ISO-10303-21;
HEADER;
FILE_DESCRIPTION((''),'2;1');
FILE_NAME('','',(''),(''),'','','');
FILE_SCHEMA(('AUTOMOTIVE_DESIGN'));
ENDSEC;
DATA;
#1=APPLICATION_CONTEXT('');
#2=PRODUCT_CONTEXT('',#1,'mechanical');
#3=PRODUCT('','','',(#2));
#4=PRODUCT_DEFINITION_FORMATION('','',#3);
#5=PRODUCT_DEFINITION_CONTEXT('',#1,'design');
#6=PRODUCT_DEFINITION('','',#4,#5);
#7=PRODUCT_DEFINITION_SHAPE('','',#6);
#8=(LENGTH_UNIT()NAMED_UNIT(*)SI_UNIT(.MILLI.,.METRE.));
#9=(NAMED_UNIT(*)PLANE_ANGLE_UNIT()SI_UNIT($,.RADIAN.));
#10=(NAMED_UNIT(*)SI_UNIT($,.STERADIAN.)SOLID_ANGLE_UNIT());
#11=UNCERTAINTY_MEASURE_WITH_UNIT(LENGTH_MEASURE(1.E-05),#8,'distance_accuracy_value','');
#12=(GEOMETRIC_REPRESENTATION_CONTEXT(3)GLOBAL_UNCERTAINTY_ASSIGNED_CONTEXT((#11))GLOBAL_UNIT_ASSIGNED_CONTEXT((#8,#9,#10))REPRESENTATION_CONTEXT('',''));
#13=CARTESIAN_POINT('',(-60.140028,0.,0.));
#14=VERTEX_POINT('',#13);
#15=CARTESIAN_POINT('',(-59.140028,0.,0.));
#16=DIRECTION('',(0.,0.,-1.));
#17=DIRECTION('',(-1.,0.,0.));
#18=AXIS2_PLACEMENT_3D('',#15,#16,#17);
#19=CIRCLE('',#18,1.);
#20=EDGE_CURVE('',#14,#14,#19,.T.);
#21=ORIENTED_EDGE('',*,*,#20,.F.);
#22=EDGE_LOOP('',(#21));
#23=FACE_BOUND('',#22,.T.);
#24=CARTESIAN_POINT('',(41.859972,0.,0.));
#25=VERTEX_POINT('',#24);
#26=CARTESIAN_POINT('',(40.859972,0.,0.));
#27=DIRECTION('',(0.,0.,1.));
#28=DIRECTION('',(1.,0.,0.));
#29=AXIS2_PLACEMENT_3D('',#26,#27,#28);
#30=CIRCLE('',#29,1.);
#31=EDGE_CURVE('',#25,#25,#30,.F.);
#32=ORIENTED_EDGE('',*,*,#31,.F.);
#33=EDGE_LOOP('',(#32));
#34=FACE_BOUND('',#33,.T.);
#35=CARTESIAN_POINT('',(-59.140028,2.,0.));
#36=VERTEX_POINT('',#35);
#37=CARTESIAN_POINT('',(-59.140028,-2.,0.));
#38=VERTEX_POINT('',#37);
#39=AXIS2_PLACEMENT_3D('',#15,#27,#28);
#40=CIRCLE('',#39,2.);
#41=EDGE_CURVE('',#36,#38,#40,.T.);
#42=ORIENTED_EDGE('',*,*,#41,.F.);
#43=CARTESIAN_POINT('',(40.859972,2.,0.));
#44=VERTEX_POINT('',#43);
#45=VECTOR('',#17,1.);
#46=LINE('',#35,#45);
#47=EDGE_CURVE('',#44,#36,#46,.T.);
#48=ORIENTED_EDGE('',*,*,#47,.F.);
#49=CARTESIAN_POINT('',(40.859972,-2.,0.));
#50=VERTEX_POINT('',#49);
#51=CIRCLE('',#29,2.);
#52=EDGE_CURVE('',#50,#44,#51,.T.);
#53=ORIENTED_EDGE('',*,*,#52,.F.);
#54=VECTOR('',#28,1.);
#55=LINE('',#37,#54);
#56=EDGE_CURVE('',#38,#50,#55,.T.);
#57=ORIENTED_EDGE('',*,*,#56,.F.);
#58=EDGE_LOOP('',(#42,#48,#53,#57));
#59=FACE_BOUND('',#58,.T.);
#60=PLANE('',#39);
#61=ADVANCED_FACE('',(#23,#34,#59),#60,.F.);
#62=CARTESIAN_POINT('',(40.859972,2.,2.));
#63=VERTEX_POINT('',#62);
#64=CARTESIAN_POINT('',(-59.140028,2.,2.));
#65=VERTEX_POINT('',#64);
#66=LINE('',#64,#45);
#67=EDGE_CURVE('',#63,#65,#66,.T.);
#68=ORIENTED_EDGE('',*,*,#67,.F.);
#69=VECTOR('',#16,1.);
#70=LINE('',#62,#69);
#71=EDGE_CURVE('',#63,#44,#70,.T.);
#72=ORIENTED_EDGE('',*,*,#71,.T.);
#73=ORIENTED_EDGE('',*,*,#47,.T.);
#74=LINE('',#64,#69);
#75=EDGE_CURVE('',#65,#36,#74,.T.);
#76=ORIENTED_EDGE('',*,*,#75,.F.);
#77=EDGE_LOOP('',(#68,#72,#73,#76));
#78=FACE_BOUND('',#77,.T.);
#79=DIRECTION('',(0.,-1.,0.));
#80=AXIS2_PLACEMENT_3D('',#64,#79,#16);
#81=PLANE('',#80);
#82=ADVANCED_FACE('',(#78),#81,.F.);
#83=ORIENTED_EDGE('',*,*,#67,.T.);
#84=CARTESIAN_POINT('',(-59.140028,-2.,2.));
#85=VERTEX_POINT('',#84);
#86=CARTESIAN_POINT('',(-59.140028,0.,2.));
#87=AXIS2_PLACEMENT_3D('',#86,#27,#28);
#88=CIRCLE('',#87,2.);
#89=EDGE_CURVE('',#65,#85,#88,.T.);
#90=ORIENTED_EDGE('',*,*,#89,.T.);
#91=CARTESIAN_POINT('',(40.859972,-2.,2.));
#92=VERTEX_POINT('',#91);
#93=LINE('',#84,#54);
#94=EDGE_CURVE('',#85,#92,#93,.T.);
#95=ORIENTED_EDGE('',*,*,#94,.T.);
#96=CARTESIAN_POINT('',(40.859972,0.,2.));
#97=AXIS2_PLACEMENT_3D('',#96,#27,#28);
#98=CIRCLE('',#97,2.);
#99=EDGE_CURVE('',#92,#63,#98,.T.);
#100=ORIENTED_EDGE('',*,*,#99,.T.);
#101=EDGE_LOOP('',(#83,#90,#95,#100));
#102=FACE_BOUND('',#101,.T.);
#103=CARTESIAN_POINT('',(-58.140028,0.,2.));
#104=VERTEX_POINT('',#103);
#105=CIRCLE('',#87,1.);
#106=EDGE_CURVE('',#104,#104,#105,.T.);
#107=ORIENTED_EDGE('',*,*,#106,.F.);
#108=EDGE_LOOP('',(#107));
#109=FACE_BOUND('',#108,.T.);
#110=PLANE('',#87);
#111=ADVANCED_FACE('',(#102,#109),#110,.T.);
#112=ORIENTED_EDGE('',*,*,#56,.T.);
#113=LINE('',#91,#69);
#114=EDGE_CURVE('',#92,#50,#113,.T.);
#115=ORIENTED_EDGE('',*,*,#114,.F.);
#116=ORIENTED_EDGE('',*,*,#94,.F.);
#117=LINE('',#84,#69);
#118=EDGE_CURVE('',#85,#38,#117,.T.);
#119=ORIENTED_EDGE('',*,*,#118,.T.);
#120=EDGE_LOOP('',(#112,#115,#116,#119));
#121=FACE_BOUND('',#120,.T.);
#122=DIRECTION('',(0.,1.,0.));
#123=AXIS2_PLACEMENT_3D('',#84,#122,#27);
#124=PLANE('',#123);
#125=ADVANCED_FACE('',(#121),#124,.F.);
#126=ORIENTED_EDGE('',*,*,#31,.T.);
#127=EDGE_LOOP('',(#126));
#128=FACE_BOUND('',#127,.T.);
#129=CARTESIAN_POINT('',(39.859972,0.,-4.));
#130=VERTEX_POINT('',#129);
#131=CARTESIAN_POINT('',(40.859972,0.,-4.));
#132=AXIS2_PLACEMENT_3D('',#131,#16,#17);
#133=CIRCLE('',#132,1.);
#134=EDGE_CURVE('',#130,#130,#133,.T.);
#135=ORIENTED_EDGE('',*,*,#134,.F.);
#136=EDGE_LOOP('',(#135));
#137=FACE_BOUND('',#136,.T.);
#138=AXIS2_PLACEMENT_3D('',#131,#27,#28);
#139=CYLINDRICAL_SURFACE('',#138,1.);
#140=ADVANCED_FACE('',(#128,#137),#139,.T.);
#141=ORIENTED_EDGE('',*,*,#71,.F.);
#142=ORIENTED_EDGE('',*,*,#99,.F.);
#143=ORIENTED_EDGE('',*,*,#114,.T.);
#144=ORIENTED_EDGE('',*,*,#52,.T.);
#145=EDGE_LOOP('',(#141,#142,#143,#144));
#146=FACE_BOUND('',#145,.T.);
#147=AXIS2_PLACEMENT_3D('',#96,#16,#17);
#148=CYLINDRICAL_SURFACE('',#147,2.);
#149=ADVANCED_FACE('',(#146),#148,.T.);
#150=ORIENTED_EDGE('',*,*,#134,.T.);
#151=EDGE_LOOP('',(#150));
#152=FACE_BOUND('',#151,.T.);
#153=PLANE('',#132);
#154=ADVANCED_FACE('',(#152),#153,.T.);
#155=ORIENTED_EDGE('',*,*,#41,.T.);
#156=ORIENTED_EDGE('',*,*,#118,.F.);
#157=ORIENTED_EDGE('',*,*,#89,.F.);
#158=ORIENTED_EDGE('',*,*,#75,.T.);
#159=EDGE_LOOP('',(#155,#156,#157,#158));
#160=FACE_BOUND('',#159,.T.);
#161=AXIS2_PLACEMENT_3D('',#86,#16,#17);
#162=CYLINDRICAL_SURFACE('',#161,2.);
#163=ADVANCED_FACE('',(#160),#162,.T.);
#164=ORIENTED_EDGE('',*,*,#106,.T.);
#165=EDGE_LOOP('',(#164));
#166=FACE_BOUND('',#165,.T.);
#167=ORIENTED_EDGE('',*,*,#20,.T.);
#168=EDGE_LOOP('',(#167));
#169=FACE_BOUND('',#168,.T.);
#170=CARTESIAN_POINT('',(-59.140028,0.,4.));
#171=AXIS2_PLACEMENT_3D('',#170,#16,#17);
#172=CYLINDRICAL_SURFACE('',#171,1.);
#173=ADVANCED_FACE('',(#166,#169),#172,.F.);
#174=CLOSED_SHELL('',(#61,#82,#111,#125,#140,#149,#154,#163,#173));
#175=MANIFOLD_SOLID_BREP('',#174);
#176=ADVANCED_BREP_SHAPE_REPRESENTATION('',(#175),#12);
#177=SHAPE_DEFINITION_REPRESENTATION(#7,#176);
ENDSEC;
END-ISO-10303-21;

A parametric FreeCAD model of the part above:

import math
import FreeCAD as App
import Part
import Sketcher
Q = App.Units.Quantity

doc = App.newDocument("Part")
body = doc.addObject("PartDesign::Body", "Body")

sketch1 = doc.addObject("Sketcher::SketchObject", "Sketch")
body.addObject(sketch1)
sketch1.AttachmentSupport = (doc.XY_Plane, [""])
sketch1.MapMode = "FlatFace"
sketch1.addGeometry([
    Part.LineSegment(App.Vector(-59.1, -2, 0), App.Vector(40.9, -2, 0)),
    Part.ArcOfCircle(Part.Circle(App.Vector(40.9, 0, 0), App.Vector(0, 0, 1), 2), math.radians(-90), math.radians(90)),
    Part.LineSegment(App.Vector(40.9, 2, 0), App.Vector(-59.1, 2, 0)),
    Part.ArcOfCircle(Part.Circle(App.Vector(-59.1, 0, 0), App.Vector(0, 0, 1), 2), math.radians(90), math.radians(270)),
], False)
sketch1.addConstraint([
    Sketcher.Constraint("Tangent", 0, 2, 1, 1),
    Sketcher.Constraint("Tangent", 1, 2, 2, 1),
    Sketcher.Constraint("Tangent", 2, 2, 3, 1),
    Sketcher.Constraint("Tangent", 3, 2, 0, 1),
    Sketcher.Constraint("Horizontal", 0),
    Sketcher.Constraint("Horizontal", 2),
    Sketcher.Constraint("PointOnObject", 1, 3, -1),
    Sketcher.Constraint("Radius", 1, Q("2 mm")),
    Sketcher.Constraint("DistanceX", 0, 1, 0, 2, Q("100 mm")),
    Sketcher.Constraint("DistanceX", -1, 1, 1, 3, Q("40.859972 mm")),
])
pad1 = doc.addObject("PartDesign::Pad", "Pad")
body.addObject(pad1)
pad1.Profile = sketch1
pad1.Length = 2

sketch2 = doc.addObject("Sketcher::SketchObject", "Sketch001")
body.addObject(sketch2)
sketch2.AttachmentSupport = (doc.XY_Plane, [""])
sketch2.MapMode = "FlatFace"
sketch2.addGeometry(Part.Circle(App.Vector(40.9, 0, 0), App.Vector(0, 0, 1), 1), False)
sketch2.addConstraint([
    Sketcher.Constraint("PointOnObject", 0, 3, -1),
    Sketcher.Constraint("Diameter", 0, Q("2 mm")),
    Sketcher.Constraint("DistanceX", -1, 1, 0, 3, Q("40.859972 mm")),
])
pad2 = doc.addObject("PartDesign::Pad", "Pad001")
body.addObject(pad2)
pad2.Profile = sketch2
pad2.Length = 4
pad2.Reversed = True

sketch3 = doc.addObject("Sketcher::SketchObject", "Sketch002")
body.addObject(sketch3)
sketch3.AttachmentSupport = (doc.XY_Plane, [""])
sketch3.MapMode = "FlatFace"
sketch3.addGeometry(Part.Circle(App.Vector(-59.1, 0, 0), App.Vector(0, 0, 1), 1), False)
sketch3.addConstraint([
    Sketcher.Constraint("PointOnObject", 0, 3, -1),
    Sketcher.Constraint("Diameter", 0, Q("2 mm")),
    Sketcher.Constraint("DistanceX", 0, 3, -1, 1, Q("59.140028 mm")),
])
pocket1 = doc.addObject("PartDesign::Pocket", "Pocket")
body.addObject(pocket1)
pocket1.Profile = sketch3
pocket1.Length = 4
pocket1.Reversed = True

doc.recompute()
